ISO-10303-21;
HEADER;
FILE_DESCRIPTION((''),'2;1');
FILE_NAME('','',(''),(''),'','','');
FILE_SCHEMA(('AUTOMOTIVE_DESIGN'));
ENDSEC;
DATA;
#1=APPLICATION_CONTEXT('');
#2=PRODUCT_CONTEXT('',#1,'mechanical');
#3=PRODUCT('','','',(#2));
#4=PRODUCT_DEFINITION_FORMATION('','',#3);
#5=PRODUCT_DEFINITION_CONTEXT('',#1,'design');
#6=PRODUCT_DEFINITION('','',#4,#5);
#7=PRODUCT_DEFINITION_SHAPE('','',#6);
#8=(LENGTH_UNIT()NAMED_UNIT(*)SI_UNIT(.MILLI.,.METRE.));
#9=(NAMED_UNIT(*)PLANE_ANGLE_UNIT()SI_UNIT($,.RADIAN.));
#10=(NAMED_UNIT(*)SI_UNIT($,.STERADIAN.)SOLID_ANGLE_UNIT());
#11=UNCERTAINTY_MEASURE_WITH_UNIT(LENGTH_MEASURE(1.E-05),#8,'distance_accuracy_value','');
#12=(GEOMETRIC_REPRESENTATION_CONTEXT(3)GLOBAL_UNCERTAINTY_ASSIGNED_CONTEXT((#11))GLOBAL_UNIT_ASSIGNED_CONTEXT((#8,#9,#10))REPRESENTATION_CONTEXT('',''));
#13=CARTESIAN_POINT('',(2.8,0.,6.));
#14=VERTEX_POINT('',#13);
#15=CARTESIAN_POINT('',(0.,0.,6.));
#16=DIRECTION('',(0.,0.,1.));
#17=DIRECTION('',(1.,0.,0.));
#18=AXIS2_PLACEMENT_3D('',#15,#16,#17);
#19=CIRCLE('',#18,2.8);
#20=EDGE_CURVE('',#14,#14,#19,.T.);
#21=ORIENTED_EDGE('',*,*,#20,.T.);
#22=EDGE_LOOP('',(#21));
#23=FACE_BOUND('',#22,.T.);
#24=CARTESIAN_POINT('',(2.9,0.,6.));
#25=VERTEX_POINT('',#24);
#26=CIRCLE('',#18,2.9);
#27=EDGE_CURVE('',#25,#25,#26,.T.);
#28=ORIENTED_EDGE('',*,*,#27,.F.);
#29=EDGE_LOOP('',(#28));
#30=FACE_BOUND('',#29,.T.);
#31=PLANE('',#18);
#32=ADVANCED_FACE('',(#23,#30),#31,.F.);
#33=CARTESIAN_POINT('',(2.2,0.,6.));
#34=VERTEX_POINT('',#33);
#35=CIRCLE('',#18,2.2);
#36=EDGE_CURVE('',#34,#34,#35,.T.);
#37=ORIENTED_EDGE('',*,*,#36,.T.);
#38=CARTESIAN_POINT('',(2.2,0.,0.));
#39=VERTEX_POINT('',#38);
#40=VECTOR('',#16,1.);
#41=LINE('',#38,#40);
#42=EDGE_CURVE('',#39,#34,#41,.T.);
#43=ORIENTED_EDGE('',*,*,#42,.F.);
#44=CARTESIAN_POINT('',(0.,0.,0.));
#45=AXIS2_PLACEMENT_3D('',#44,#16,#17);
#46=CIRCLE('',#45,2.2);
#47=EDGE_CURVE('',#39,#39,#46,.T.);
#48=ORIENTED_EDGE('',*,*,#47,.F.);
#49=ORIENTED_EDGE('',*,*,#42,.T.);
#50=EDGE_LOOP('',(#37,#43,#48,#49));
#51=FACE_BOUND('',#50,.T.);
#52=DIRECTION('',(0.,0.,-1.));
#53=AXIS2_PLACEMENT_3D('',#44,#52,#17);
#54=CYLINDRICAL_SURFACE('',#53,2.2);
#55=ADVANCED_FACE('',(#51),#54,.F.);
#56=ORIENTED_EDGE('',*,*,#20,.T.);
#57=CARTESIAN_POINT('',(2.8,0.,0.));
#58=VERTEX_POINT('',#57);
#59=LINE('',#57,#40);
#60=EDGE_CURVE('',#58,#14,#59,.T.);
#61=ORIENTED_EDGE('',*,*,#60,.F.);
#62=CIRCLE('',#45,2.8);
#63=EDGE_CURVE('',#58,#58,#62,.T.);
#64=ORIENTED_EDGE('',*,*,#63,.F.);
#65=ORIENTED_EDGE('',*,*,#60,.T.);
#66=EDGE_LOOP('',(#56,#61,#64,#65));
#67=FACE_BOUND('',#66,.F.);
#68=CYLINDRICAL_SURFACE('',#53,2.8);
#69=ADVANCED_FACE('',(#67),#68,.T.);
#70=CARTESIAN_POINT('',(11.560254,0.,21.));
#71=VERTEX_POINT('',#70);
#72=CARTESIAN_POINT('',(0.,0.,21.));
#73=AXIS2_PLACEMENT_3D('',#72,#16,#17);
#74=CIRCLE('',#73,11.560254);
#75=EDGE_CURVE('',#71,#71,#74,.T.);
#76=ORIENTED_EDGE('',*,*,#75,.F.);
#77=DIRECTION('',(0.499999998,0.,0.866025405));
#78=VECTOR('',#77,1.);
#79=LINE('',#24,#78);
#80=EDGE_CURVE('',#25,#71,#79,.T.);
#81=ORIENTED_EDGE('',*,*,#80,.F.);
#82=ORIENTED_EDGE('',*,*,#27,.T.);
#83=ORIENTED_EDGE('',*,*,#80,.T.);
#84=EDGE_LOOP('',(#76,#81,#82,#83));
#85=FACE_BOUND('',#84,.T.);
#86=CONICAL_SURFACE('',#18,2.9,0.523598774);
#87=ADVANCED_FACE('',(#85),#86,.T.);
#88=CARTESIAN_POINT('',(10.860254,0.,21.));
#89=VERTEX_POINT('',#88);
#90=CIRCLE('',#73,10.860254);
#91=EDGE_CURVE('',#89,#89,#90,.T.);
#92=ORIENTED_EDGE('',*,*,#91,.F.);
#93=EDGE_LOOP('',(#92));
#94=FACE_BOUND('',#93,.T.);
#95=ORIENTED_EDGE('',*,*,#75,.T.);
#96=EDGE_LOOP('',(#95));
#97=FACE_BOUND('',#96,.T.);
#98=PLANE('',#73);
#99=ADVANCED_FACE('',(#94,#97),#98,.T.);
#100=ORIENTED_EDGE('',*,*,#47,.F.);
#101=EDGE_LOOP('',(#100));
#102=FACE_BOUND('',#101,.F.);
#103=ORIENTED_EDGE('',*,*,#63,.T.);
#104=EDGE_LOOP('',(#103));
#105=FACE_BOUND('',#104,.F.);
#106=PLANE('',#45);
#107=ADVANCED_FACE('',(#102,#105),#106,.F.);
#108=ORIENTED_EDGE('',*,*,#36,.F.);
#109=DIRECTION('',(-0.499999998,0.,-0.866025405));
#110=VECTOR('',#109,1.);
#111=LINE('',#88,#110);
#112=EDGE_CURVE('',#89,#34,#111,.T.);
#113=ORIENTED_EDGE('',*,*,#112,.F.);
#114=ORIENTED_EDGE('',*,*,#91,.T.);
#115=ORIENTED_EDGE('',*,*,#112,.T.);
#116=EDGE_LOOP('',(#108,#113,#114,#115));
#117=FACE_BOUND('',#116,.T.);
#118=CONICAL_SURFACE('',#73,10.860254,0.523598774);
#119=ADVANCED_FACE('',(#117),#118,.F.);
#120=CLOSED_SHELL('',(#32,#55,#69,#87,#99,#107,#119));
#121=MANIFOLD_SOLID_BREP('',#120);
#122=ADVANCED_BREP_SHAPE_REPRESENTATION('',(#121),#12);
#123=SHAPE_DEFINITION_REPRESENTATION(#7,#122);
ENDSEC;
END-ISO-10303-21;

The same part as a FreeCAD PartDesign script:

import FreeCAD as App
import Part
import Sketcher
Q = App.Units.Quantity

doc = App.newDocument("Part")
body = doc.addObject("PartDesign::Body", "Body")

# Sketch on XY plane
sketch1 = body.newObject("Sketcher::SketchObject", "Sketch")
sketch1.AttachmentSupport = (doc.getObject("XY_Plane"), [""])
sketch1.MapMode = "FlatFace"
sketch1.addGeometry([
    Part.Circle(App.Vector(0, 0, 0), App.Vector(0, 0, 1), 2.8),
    Part.Circle(App.Vector(0, 0, 0), App.Vector(0, 0, 1), 2.2),
], False)
sketch1.addConstraint([
    Sketcher.Constraint("Coincident", 0, 3, -1, 1),
    Sketcher.Constraint("Coincident", 1, 3, -1, 1),
    Sketcher.Constraint("Diameter", 0, Q("5.6 mm")),
    Sketcher.Constraint("Diameter", 1, Q("4.4 mm")),
])
pad1 = body.newObject("PartDesign::Pad", "Pad")
pad1.Profile = sketch1
pad1.Length = 6

# Sketch on XZ plane
sketch2 = body.newObject("Sketcher::SketchObject", "Sketch001")
sketch2.AttachmentSupport = (doc.getObject("XZ_Plane"), [""])
sketch2.MapMode = "FlatFace"
sketch2.addGeometry([
    Part.LineSegment(App.Vector(10.9, 21, 0), App.Vector(2.2, 6, 0)),
    Part.LineSegment(App.Vector(2.2, 6, 0), App.Vector(2.9, 6, 0)),
    Part.LineSegment(App.Vector(2.9, 6, 0), App.Vector(11.6, 21, 0)),
    Part.LineSegment(App.Vector(11.6, 21, 0), App.Vector(10.9, 21, 0)),
], False)
sketch2.addConstraint([
    Sketcher.Constraint("Coincident", 0, 2, 1, 1),
    Sketcher.Constraint("Coincident", 1, 2, 2, 1),
    Sketcher.Constraint("Coincident", 2, 2, 3, 1),
    Sketcher.Constraint("Coincident", 3, 2, 0, 1),
    Sketcher.Constraint("Horizontal", 1),
    Sketcher.Constraint("Horizontal", 3),
    Sketcher.Constraint("Parallel", 0, 2),
    Sketcher.Constraint("Angle", 0, Q("-120 deg")),
    Sketcher.Constraint("DistanceX", 1, 1, 1, 2, Q("0.7 mm")),
    Sketcher.Constraint("DistanceY", -1, 1, 0, 2, Q("6 mm")),
    Sketcher.Constraint("DistanceY", -1, 1, 2, 2, Q("21 mm")),
    Sketcher.Constraint("DistanceX", -1, 1, 0, 2, Q("2.2 mm")),
])
revolution = body.newObject("PartDesign::Revolution", "Revolution")
revolution.Profile = sketch2
revolution.ReferenceAxis = (sketch2, ["V_Axis"])
revolution.Angle = 360

doc.recompute()
